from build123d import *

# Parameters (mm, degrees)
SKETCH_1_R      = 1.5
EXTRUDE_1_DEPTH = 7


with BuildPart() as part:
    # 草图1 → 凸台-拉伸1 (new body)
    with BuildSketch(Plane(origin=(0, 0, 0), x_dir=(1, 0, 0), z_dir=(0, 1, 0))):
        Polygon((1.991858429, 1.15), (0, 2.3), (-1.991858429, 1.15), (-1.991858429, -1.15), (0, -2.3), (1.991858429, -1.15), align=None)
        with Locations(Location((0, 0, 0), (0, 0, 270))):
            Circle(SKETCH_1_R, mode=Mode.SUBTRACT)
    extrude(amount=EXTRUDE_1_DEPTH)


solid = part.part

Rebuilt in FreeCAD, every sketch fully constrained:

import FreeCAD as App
import Part
import Sketcher
from FreeCAD import Vector
Q = App.Units.Quantity

doc = App.newDocument("Part")
body = doc.addObject("PartDesign::Body", "Body")

# Sketch on XZ plane
sketch1 = body.newObject("Sketcher::SketchObject", "Sketch")
sketch1.AttachmentSupport = (doc.getObject("XZ_Plane"), [""])
sketch1.MapMode = "FlatFace"
sketch1.addGeometry(Part.LineSegment(Vector(2, -1.1, 0), Vector(0, -2.3, 0)), False)
sketch1.addGeometry(Part.LineSegment(Vector(0, -2.3, 0), Vector(-2, -1.1, 0)), False)
sketch1.addGeometry(Part.LineSegment(Vector(-2, -1.1, 0), Vector(-2, 1.1, 0)), False)
sketch1.addGeometry(Part.LineSegment(Vector(-2, 1.1, 0), Vector(0, 2.3, 0)), False)
sketch1.addGeometry(Part.LineSegment(Vector(0, 2.3, 0), Vector(2, 1.1, 0)), False)
sketch1.addGeometry(Part.LineSegment(Vector(2, 1.1, 0), Vector(2, -1.1, 0)), False)
sketch1.addGeometry(Part.Circle(Vector(0, 0, 0), Vector(0, 0, 1), 1.5), False)
sketch1.addConstraint(Sketcher.Constraint("Coincident", 0, 2, 1, 1))
sketch1.addConstraint(Sketcher.Constraint("Coincident", 1, 2, 2, 1))
sketch1.addConstraint(Sketcher.Constraint("Coincident", 2, 2, 3, 1))
sketch1.addConstraint(Sketcher.Constraint("Coincident", 3, 2, 4, 1))
sketch1.addConstraint(Sketcher.Constraint("Coincident", 4, 2, 5, 1))
sketch1.addConstraint(Sketcher.Constraint("Coincident", 5, 2, 0, 1))
sketch1.addConstraint(Sketcher.Constraint("Vertical", 2))
sketch1.addConstraint(Sketcher.Constraint("Vertical", 5))
sketch1.addConstraint(Sketcher.Constraint("Coincident", 6, 3, -1, 1))
sketch1.addConstraint(Sketcher.Constraint("Symmetric", 0, 2, 3, 2, -1, 1))
sketch1.addConstraint(Sketcher.Constraint("Symmetric", 1, 2, 4, 2, -1, 1))
sketch1.addConstraint(Sketcher.Constraint("PointOnObject", 0, 2, -2))
sketch1.addConstraint(Sketcher.Constraint("Parallel", 0, 3))
sketch1.addConstraint(Sketcher.Constraint("Horizontal", 2, 2, 4, 2))
sketch1.addConstraint(Sketcher.Constraint("Diameter", 6, 3.0))
sketch1.addConstraint(Sketcher.Constraint("Angle", 0, Q("-150 deg")))
sketch1.addConstraint(Sketcher.Constraint("DistanceY", 2, 1, 2, 2, 2.3))
sketch1.addConstraint(Sketcher.Constraint("Distance", 0, 2.3))
pad1 = body.newObject("PartDesign::Pad", "Pad")
pad1.Profile = sketch1
pad1.Length = 7
pad1.Reversed = True

doc.recompute()
